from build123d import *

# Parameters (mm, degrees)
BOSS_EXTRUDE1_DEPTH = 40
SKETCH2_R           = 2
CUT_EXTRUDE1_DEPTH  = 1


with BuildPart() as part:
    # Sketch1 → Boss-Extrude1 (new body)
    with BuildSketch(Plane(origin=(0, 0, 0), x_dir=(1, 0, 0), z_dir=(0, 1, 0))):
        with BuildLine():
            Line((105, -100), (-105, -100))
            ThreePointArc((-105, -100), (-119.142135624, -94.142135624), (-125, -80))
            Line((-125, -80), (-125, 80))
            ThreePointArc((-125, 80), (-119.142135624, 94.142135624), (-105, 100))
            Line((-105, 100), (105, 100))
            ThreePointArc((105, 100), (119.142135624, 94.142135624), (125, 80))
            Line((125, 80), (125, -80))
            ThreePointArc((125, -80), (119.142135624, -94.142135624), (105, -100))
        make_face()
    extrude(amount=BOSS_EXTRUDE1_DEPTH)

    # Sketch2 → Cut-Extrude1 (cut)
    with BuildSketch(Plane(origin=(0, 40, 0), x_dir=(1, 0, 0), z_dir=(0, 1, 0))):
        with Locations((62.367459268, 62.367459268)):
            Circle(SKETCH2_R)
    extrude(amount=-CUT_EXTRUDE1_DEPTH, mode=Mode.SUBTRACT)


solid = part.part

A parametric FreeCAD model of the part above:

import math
import FreeCAD as App
import Part
import Sketcher
Q = App.Units.Quantity

doc = App.newDocument("Part")
body = doc.addObject("PartDesign::Body", "Body")

# Sketch on XZ plane
sketch1 = body.newObject("Sketcher::SketchObject", "Sketch")
sketch1.AttachmentSupport = (doc.getObject("XZ_Plane"), [""])
sketch1.MapMode = "FlatFace"
sketch1.addGeometry([
    Part.LineSegment(App.Vector(-105, 100, 0), App.Vector(105, 100, 0)),  # 0
    Part.ArcOfCircle(Part.Circle(App.Vector(105, 80, 0), App.Vector(0, 0, 1), 20), math.radians(0), math.radians(90)),  # 1
    Part.LineSegment(App.Vector(125, 80, 0), App.Vector(125, -80, 0)),  # 2
    Part.ArcOfCircle(Part.Circle(App.Vector(105, -80, 0), App.Vector(0, 0, 1), 20), math.radians(-90), math.radians(0)),  # 3
    Part.LineSegment(App.Vector(105, -100, 0), App.Vector(-105, -100, 0)),  # 4
    Part.ArcOfCircle(Part.Circle(App.Vector(-105, -80, 0), App.Vector(0, 0, 1), 20), math.radians(180), math.radians(270)),  # 5
    Part.LineSegment(App.Vector(-125, -80, 0), App.Vector(-125, 80, 0)),  # 6
    Part.ArcOfCircle(Part.Circle(App.Vector(-105, 80, 0), App.Vector(0, 0, 1), 20), math.radians(90), math.radians(180)),  # 7
], False)
sketch1.addConstraint([
    Sketcher.Constraint("Tangent", 0, 2, 1, 2),
    Sketcher.Constraint("Tangent", 1, 1, 2, 1),
    Sketcher.Constraint("Tangent", 2, 2, 3, 2),
    Sketcher.Constraint("Tangent", 3, 1, 4, 1),
    Sketcher.Constraint("Tangent", 4, 2, 5, 2),
    Sketcher.Constraint("Tangent", 5, 1, 6, 1),
    Sketcher.Constraint("Tangent", 6, 2, 7, 2),
    Sketcher.Constraint("Tangent", 7, 1, 0, 1),
    Sketcher.Constraint("Horizontal", 0),
    Sketcher.Constraint("Vertical", 2),
    Sketcher.Constraint("Horizontal", 4),
    Sketcher.Constraint("Vertical", 6),
    Sketcher.Constraint("Equal", 1, 3),
    Sketcher.Constraint("Equal", 3, 5),
    Sketcher.Constraint("Equal", 5, 7),
    Sketcher.Constraint("Symmetric", 1, 3, 5, 3, -1, 1),
    Sketcher.Constraint("Radius", 1, Q("20 mm")),
    Sketcher.Constraint("DistanceX", 0, 1, 0, 2, Q("210 mm")),
    Sketcher.Constraint("DistanceY", 2, 2, 2, 1, Q("160 mm")),
])
pad1 = body.newObject("PartDesign::Pad", "Pad")
pad1.Profile = sketch1
pad1.Length = 40
pad1.Reversed = True

# Sketch on XZ plane
sketch2 = body.newObject("Sketcher::SketchObject", "Sketch001")
sketch2.AttachmentSupport = (doc.getObject("XZ_Plane"), [""])
sketch2.MapMode = "FlatFace"
sketch2.AttachmentOffset = App.Placement(App.Vector(0, 0, -40), App.Rotation())
sketch2.addGeometry(Part.Circle(App.Vector(62.367459, -62.367459, 0), App.Vector(0, 0, 1), 2), False)
sketch2.addConstraint([
    Sketcher.Constraint("Diameter", 0, Q("4 mm")),
    Sketcher.Constraint("DistanceX", -1, 1, 0, 3, Q("62.367459 mm")),
    Sketcher.Constraint("DistanceY", 0, 3, -1, 1, Q("62.367459 mm")),
])
pocket1 = body.newObject("PartDesign::Pocket", "Pocket")
pocket1.Profile = sketch2
pocket1.Length = 1
pocket1.Reversed = True

doc.recompute()
